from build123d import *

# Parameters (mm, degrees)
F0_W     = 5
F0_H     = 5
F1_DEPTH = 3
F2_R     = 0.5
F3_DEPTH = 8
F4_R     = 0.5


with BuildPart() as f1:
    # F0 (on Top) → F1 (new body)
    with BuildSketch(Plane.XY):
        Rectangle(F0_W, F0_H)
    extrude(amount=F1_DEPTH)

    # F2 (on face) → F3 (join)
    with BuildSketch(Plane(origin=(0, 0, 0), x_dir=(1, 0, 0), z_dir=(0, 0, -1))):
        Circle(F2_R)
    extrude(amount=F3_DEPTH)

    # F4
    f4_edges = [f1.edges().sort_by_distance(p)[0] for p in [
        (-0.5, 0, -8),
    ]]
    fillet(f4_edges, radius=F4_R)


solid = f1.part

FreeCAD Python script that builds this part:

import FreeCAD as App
import Part
import Sketcher

V = App.Vector


def edges_at(feature, points):
    """Names of the edges that pass closest to the given points."""
    edges = feature.Shape.Edges
    near = lambda p: min(range(len(edges)), key=lambda i: edges[i].distToShape(Part.Vertex(*p))[0])
    return sorted({f"Edge{near(p) + 1}" for p in points})

doc = App.newDocument("Part")
body = doc.addObject("PartDesign::Body", "Body")

# Sketch on XY plane
sketch1 = body.newObject("Sketcher::SketchObject", "Sketch")
sketch1.AttachmentSupport = (doc.getObject("XY_Plane"), [""])
sketch1.MapMode = "FlatFace"
sketch1.addGeometry([
    Part.LineSegment(V(-2, 2, 0), V(-2, -2, 0)),
    Part.LineSegment(V(-2, -2, 0), V(2, -2, 0)),
    Part.LineSegment(V(2, -2, 0), V(2, 2, 0)),
    Part.LineSegment(V(2, 2, 0), V(-2, 2, 0)),
], False)
sketch1.addConstraint([
    Sketcher.Constraint("Coincident", 0, 2, 1, 1),
    Sketcher.Constraint("Coincident", 1, 2, 2, 1),
    Sketcher.Constraint("Coincident", 2, 2, 3, 1),
    Sketcher.Constraint("Coincident", 3, 2, 0, 1),
    Sketcher.Constraint("Vertical", 0),
    Sketcher.Constraint("Horizontal", 1),
    Sketcher.Constraint("Vertical", 2),
    Sketcher.Constraint("Horizontal", 3),
    Sketcher.Constraint("Symmetric", 0, 2, 2, 2, -1, 1),
    Sketcher.Constraint("Equal", 3, 0),
    Sketcher.Constraint("DistanceX", 1, 1, 1, 2, 5.0),
])
pad1 = body.newObject("PartDesign::Pad", "Pad")
pad1.Profile = sketch1
pad1.Length = 3

# Sketch on XY plane
sketch2 = body.newObject("Sketcher::SketchObject", "Sketch001")
sketch2.AttachmentSupport = (doc.getObject("XY_Plane"), [""])
sketch2.MapMode = "FlatFace"
sketch2.addGeometry(Part.Circle(V(0, 0, 0), V(0, 0, 1), 0.5), False)
sketch2.addConstraint([
    Sketcher.Constraint("Coincident", 0, 3, -1, 1),
    Sketcher.Constraint("Diameter", 0, 1.0),
])
pad2 = body.newObject("PartDesign::Pad", "Pad001")
pad2.Profile = sketch2
pad2.Length = 8
pad2.Reversed = True
doc.recompute()

fillet = body.newObject("PartDesign::Fillet", "Fillet")
fillet.Base = (pad2, edges_at(pad2, [(-0.5, 0, -8)]))
fillet.Radius = 0.5

doc.recompute()
